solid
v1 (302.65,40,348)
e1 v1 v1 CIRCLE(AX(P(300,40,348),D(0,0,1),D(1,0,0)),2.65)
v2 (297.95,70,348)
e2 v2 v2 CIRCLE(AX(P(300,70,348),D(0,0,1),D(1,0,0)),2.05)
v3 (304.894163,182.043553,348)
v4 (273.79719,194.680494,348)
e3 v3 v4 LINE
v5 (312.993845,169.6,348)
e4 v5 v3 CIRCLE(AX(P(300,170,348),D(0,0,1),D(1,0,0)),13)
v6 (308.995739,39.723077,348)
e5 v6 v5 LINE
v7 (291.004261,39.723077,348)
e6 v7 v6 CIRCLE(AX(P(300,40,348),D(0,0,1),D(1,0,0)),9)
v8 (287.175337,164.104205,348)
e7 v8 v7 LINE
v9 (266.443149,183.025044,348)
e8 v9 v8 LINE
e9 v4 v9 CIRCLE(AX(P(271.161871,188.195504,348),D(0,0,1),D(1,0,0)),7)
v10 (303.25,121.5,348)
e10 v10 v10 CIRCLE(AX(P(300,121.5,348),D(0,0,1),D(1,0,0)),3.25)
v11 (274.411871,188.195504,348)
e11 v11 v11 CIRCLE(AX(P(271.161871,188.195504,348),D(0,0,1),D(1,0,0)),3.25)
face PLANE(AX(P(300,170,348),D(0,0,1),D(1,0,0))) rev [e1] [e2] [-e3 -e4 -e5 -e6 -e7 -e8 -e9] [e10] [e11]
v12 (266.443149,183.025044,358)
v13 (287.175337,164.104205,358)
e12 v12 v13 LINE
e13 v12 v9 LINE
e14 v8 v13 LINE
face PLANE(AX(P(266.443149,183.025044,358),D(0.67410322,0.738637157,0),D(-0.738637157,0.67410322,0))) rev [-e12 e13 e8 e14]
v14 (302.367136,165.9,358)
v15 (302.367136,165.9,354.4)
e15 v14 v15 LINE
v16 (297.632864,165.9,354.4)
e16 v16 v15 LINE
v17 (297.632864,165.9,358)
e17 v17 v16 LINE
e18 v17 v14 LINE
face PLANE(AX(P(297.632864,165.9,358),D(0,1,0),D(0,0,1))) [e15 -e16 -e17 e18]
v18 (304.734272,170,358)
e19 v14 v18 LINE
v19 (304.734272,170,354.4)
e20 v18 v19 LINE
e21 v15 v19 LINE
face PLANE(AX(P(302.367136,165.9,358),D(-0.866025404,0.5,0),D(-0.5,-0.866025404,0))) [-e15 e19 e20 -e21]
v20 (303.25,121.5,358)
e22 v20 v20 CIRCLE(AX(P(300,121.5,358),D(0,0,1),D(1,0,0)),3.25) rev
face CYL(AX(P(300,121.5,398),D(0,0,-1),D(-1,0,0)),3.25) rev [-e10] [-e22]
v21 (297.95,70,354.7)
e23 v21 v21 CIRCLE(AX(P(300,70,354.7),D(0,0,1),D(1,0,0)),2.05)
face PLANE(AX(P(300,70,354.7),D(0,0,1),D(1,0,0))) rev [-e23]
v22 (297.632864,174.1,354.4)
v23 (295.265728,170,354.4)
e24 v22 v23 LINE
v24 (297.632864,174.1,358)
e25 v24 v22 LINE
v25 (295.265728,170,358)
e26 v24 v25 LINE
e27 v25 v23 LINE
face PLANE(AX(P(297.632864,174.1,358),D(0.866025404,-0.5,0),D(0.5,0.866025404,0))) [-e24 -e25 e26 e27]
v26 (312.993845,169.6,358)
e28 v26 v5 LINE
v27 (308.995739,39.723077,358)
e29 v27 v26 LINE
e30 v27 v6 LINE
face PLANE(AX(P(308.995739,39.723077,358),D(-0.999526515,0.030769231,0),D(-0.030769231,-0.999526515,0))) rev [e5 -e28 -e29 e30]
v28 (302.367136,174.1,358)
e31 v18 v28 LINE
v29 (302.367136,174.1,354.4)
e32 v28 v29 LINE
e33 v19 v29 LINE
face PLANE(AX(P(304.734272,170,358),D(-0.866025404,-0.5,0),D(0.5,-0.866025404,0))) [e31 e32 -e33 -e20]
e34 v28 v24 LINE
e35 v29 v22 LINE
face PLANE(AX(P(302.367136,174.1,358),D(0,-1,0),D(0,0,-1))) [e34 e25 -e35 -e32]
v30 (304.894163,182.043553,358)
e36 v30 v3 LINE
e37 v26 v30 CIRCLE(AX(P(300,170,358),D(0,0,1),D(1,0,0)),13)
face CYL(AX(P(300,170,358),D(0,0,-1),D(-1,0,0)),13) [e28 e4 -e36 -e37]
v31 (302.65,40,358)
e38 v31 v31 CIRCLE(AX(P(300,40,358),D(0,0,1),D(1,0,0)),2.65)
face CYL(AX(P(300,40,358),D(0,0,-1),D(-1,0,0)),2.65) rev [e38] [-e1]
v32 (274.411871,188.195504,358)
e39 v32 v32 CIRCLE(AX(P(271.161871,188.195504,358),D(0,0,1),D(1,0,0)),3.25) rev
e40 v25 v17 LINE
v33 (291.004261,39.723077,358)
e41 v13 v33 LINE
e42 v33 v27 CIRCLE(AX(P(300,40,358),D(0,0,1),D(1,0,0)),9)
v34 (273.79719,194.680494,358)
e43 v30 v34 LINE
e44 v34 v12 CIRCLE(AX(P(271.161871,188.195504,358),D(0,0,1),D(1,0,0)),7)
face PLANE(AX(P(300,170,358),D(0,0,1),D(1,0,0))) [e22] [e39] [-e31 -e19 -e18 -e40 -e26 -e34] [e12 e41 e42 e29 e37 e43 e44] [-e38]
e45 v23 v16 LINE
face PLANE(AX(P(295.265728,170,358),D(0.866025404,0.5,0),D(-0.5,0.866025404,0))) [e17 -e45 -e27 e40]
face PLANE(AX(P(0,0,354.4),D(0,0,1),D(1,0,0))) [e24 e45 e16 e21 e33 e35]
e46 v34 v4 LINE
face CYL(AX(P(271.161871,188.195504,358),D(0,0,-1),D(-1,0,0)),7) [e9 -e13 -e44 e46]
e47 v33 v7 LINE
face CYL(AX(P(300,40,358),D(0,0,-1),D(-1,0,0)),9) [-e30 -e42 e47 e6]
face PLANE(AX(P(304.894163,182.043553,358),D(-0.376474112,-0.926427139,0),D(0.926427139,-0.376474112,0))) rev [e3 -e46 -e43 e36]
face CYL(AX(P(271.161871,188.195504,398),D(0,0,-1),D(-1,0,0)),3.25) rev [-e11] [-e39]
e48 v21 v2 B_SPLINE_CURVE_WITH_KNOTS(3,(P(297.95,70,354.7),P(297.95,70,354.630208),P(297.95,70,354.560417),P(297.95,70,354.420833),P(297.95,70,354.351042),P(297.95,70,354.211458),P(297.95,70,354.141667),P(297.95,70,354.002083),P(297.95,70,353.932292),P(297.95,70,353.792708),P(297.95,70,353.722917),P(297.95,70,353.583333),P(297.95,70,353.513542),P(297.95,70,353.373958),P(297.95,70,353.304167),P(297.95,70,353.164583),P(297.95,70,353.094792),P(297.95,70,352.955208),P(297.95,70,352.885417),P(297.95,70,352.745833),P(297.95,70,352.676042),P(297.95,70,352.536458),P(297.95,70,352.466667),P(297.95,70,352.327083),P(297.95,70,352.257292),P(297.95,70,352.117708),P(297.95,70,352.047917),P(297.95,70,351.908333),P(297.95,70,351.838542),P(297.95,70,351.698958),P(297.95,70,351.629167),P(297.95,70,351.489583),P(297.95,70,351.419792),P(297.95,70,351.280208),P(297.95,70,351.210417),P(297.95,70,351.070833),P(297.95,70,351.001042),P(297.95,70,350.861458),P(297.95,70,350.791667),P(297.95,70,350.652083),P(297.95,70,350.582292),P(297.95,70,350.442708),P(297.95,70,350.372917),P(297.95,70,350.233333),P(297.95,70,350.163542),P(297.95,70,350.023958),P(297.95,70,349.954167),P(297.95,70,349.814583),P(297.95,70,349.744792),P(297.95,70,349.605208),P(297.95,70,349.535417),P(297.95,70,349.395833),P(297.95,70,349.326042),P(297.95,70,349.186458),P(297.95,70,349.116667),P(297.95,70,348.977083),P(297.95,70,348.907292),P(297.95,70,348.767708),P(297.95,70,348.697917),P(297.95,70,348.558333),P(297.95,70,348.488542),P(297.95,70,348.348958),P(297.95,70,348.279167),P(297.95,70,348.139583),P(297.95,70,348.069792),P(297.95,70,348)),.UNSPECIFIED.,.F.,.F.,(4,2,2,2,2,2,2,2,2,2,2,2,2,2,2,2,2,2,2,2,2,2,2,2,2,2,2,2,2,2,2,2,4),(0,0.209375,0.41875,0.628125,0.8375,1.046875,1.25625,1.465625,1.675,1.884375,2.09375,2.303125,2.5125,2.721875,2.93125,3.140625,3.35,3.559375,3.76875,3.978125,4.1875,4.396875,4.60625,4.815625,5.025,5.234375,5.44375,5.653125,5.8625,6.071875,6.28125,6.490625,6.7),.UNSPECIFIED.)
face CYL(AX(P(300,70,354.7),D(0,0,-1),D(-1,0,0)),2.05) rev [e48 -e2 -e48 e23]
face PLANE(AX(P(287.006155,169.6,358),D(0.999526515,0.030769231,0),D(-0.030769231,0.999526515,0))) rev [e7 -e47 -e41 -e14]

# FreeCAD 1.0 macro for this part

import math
import FreeCAD as App
import Part
import Sketcher

V = App.Vector
Q = App.Units.Quantity

doc = App.newDocument("Part")
body = doc.addObject("PartDesign::Body", "Body")

sketch1 = body.newObject("Sketcher::SketchObject", "Sketch")
sketch1.AttachmentSupport = (doc.getObject("XY_Plane"), [""])
sketch1.MapMode = "FlatFace"
sketch1.AttachmentOffset = App.Placement(V(0, 0, 348), App.Rotation())
sketch1.addGeometry([
    Part.LineSegment(V(287, 169.6, 0), V(291, 39.7, 0)),
    Part.ArcOfCircle(Part.Circle(V(300, 40, 0), V(0, 0, 1), 9), math.radians(-178), math.radians(-2)),
    Part.LineSegment(V(309, 39.7, 0), V(313, 169.6, 0)),
    Part.ArcOfCircle(Part.Circle(V(300, 170, 0), V(0, 0, 1), 13), math.radians(-2), math.radians(182)),
    Part.Circle(V(300, 40, 0), V(0, 0, 1), 2.6),
    Part.Circle(V(300, 170, 0), V(0, 0, 1), 2.6),
], False)
sketch1.addConstraint([
    Sketcher.Constraint("Tangent", 0, 2, 1, 1),
    Sketcher.Constraint("Tangent", 1, 2, 2, 1),
    Sketcher.Constraint("Tangent", 2, 2, 3, 1),
    Sketcher.Constraint("Tangent", 3, 2, 0, 1),
    Sketcher.Constraint("Coincident", 4, 3, 1, 3),
    Sketcher.Constraint("Coincident", 5, 3, 3, 3),
    Sketcher.Constraint("Horizontal", 0, 2, 1, 2),
    Sketcher.Constraint("Radius", 1, Q("9 mm")),
    Sketcher.Constraint("Radius", 3, Q("13 mm")),
    Sketcher.Constraint("Diameter", 4, Q("5.3 mm")),
    Sketcher.Constraint("Diameter", 5, Q("5.2 mm")),
    Sketcher.Constraint("DistanceX", -1, 1, 1, 3, Q("300 mm")),
    Sketcher.Constraint("DistanceY", -1, 1, 1, 3, Q("40 mm")),
    Sketcher.Constraint("DistanceY", -1, 1, 3, 3, Q("170 mm")),
])
pad1 = body.newObject("PartDesign::Pad", "Pad")
pad1.Profile = sketch1
pad1.Length = 10

sketch2 = body.newObject("Sketcher::SketchObject", "Sketch001")
sketch2.AttachmentSupport = (doc.getObject("XY_Plane"), [""])
sketch2.MapMode = "FlatFace"
sketch2.AttachmentOffset = App.Placement(V(0, 0, 348), App.Rotation())
sketch2.addGeometry([
    Part.LineSegment(V(305, 182, 0), V(274, 195, 0)),
    Part.ArcOfCircle(Part.Circle(V(271, 188, 0), V(0, 0, 1), 7), math.radians(68), math.radians(228)),
    Part.LineSegment(V(266, 183, 0), V(291, 160, 0)),
    Part.ArcOfCircle(Part.Circle(V(300, 170, 0), V(0, 0, 1), 13), math.radians(-132), math.radians(68)),
], False)
sketch2.addConstraint([
    Sketcher.Constraint("Tangent", 0, 2, 1, 1),
    Sketcher.Constraint("Tangent", 1, 2, 2, 1),
    Sketcher.Constraint("Tangent", 2, 2, 3, 1),
    Sketcher.Constraint("Tangent", 3, 2, 0, 1),
    Sketcher.Constraint("Radius", 1, Q("7 mm")),
    Sketcher.Constraint("Radius", 3, Q("13 mm")),
    Sketcher.Constraint("DistanceX", -1, 1, 3, 3, Q("300 mm")),
    Sketcher.Constraint("DistanceY", -1, 1, 3, 3, Q("170 mm")),
    Sketcher.Constraint("Distance", 0, Q("33.566562 mm")),
    Sketcher.Constraint("DistanceX", -1, 1, 1, 3, Q("271.161871 mm")),
])
pad2 = body.newObject("PartDesign::Pad", "Pad001")
pad2.Profile = sketch2
pad2.Length = 10

sketch3 = body.newObject("Sketcher::SketchObject", "Sketch002")
sketch3.AttachmentSupport = (doc.getObject("XY_Plane"), [""])
sketch3.MapMode = "FlatFace"
sketch3.AttachmentOffset = App.Placement(V(0, 0, 354.4), App.Rotation())
sketch3.addGeometry([
    Part.LineSegment(V(304.7, 170, 0), V(302.4, 174.1, 0)),
    Part.LineSegment(V(302.4, 174.1, 0), V(297.6, 174.1, 0)),
    Part.LineSegment(V(297.6, 174.1, 0), V(295.3, 170, 0)),
    Part.LineSegment(V(295.3, 170, 0), V(297.6, 165.9, 0)),
    Part.LineSegment(V(297.6, 165.9, 0), V(302.4, 165.9, 0)),
    Part.LineSegment(V(302.4, 165.9, 0), V(304.7, 170, 0)),
], False)
sketch3.addConstraint([
    Sketcher.Constraint("Coincident", 0, 2, 1, 1),
    Sketcher.Constraint("Coincident", 1, 2, 2, 1),
    Sketcher.Constraint("Coincident", 2, 2, 3, 1),
    Sketcher.Constraint("Coincident", 3, 2, 4, 1),
    Sketcher.Constraint("Coincident", 4, 2, 5, 1),
    Sketcher.Constraint("Coincident", 5, 2, 0, 1),
    Sketcher.Constraint("Horizontal", 1),
    Sketcher.Constraint("Horizontal", 4),
    Sketcher.Constraint("Parallel", 0, 3),
    Sketcher.Constraint("Parallel", 2, 5),
    Sketcher.Constraint("Horizontal", 2, 2, 5, 2),
    Sketcher.Constraint("Vertical", 1, 2, 3, 2),
    Sketcher.Constraint("Vertical", 0, 2, 4, 2),
    Sketcher.Constraint("Angle", 0, Q("120 deg")),
    Sketcher.Constraint("DistanceY", -1, 1, 2, 2, Q("170 mm")),
    Sketcher.Constraint("DistanceY", -1, 1, 0, 2, Q("174.1 mm")),
    Sketcher.Constraint("DistanceX", 1, 2, 1, 1, Q("4.734272 mm")),
    Sketcher.Constraint("DistanceX", -1, 1, 0, 2, Q("302.367136 mm")),
])
pocket1 = body.newObject("PartDesign::Pocket", "Pocket")
pocket1.Profile = sketch3
pocket1.Length = 3.6
pocket1.Reversed = True

sketch4 = body.newObject("Sketcher::SketchObject", "Sketch003")
sketch4.AttachmentSupport = (doc.getObject("XY_Plane"), [""])
sketch4.MapMode = "FlatFace"
sketch4.AttachmentOffset = App.Placement(V(0, 0, 348), App.Rotation())
sketch4.addGeometry([
    Part.Circle(V(300, 121.5, 0), V(0, 0, 1), 3.2),
    Part.Circle(V(271.2, 188.2, 0), V(0, 0, 1), 3.2),
], False)
sketch4.addConstraint([
    Sketcher.Constraint("Equal", 0, 1),
    Sketcher.Constraint("Diameter", 0, Q("6.5 mm")),
    Sketcher.Constraint("DistanceX", -1, 1, 0, 3, Q("300 mm")),
    Sketcher.Constraint("DistanceY", -1, 1, 0, 3, Q("121.5 mm")),
    Sketcher.Constraint("DistanceX", -1, 1, 1, 3, Q("271.161871 mm")),
    Sketcher.Constraint("DistanceY", -1, 1, 1, 3, Q("188.195504 mm")),
])
pocket2 = body.newObject("PartDesign::Pocket", "Pocket001")
pocket2.Profile = sketch4
pocket2.Length = 50
pocket2.Reversed = True

sketch5 = body.newObject("Sketcher::SketchObject", "Sketch004")
sketch5.AttachmentSupport = (doc.getObject("XY_Plane"), [""])
sketch5.MapMode = "FlatFace"
sketch5.AttachmentOffset = App.Placement(V(0, 0, 348), App.Rotation())
sketch5.addGeometry(Part.Circle(V(300, 70, 0), V(0, 0, 1), 2), False)
sketch5.addConstraint([
    Sketcher.Constraint("Diameter", 0, Q("4.1 mm")),
    Sketcher.Constraint("DistanceX", -1, 1, 0, 3, Q("300 mm")),
    Sketcher.Constraint("DistanceY", -1, 1, 0, 3, Q("70 mm")),
])
pocket3 = body.newObject("PartDesign::Pocket", "Pocket002")
pocket3.Profile = sketch5
pocket3.Length = 6.7
pocket3.Reversed = True

doc.recompute()
